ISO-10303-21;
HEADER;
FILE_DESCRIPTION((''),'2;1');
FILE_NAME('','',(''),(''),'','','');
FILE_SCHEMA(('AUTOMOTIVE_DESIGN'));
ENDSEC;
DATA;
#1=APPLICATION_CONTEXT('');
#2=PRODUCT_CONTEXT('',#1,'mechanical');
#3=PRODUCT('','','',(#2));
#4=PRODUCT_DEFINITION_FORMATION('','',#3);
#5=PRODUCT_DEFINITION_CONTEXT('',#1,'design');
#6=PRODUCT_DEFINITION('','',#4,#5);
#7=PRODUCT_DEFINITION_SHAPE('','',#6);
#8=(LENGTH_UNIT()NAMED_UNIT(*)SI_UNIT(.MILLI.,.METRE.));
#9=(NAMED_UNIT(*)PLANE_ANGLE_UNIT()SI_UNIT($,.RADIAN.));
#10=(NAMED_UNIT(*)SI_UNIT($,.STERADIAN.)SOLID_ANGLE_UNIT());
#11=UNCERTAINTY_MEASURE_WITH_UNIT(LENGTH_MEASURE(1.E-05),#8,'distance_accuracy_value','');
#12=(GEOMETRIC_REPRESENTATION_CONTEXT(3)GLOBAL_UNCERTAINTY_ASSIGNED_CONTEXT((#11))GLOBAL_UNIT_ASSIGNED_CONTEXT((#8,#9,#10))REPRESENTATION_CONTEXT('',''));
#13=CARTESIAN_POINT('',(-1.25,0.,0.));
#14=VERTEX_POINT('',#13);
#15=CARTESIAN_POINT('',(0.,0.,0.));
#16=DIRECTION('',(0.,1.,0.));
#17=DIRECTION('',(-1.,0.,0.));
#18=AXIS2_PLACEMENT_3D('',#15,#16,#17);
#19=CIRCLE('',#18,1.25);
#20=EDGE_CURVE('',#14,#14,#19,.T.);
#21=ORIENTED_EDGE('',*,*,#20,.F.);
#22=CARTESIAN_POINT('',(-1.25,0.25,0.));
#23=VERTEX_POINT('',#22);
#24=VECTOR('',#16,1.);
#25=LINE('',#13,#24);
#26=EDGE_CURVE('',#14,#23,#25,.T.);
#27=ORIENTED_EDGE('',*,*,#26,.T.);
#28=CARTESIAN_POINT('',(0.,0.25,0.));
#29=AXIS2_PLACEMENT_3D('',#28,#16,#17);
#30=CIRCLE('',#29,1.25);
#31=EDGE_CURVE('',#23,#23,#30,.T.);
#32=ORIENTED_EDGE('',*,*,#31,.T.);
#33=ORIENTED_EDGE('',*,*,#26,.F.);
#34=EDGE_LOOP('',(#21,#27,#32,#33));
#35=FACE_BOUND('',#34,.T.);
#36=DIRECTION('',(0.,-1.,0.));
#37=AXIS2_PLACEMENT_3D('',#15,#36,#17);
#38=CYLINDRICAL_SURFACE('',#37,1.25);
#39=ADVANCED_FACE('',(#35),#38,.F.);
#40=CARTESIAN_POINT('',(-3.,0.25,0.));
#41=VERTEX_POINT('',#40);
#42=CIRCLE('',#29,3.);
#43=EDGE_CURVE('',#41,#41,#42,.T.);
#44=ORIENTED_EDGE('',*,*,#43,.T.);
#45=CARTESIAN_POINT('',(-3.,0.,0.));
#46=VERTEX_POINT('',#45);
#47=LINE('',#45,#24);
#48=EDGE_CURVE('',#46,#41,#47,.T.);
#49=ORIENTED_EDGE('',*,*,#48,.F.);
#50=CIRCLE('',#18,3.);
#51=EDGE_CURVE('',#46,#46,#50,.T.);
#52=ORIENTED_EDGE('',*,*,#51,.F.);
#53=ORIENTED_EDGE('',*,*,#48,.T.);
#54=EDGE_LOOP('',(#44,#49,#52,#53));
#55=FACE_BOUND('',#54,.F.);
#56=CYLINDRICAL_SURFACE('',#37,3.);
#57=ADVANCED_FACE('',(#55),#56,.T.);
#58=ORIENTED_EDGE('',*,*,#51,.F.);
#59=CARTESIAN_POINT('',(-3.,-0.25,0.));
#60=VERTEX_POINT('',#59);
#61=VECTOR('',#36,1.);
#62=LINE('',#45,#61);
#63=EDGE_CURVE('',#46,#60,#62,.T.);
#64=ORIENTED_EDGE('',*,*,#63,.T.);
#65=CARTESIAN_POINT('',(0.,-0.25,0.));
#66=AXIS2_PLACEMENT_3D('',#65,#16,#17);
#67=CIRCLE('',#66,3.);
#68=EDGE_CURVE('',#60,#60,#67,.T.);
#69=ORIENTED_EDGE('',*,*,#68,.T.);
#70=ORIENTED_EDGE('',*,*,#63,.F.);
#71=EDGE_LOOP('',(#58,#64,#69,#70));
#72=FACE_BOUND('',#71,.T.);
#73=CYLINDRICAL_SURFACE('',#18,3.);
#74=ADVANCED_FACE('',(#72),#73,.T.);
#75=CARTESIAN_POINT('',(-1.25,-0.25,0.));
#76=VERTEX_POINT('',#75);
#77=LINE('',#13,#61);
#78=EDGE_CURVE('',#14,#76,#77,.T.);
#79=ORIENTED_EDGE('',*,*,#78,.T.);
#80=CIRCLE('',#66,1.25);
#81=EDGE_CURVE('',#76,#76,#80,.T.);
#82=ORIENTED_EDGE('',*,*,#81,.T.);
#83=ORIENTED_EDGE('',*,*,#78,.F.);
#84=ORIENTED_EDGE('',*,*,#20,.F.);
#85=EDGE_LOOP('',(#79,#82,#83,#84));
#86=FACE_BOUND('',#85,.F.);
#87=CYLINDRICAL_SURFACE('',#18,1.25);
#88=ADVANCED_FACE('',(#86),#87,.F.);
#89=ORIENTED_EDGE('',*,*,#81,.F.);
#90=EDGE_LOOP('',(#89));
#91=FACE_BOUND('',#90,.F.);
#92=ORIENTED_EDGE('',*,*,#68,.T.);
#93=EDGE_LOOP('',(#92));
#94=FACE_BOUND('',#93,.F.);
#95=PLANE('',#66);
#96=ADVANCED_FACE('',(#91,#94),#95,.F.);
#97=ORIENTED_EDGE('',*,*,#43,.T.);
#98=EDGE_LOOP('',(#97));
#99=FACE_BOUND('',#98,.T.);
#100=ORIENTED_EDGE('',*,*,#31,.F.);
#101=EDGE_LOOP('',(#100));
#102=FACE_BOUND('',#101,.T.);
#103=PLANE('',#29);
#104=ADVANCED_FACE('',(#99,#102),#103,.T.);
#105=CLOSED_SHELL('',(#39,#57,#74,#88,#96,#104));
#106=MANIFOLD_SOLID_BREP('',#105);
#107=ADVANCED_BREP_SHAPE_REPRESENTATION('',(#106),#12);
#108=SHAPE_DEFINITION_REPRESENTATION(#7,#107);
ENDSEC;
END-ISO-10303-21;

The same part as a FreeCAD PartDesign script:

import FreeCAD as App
import Part
import Sketcher
Q = App.Units.Quantity

doc = App.newDocument("Part")
body = doc.addObject("PartDesign::Body", "Body")

# Sketch on XZ plane
sketch1 = body.newObject("Sketcher::SketchObject", "Sketch")
sketch1.AttachmentSupport = (doc.getObject("XZ_Plane"), [""])
sketch1.MapMode = "FlatFace"
sketch1.addGeometry(Part.Circle(App.Vector(0, 0, 0), App.Vector(0, 0, 1), 3), False)
sketch1.addGeometry(Part.Circle(App.Vector(0, 0, 0), App.Vector(0, 0, 1), 1.25), False)
sketch1.addConstraint(Sketcher.Constraint("Coincident", 0, 3, -1, 1))
sketch1.addConstraint(Sketcher.Constraint("Coincident", 1, 3, -1, 1))
sketch1.addConstraint(Sketcher.Constraint("Diameter", 0, Q("6 mm")))
sketch1.addConstraint(Sketcher.Constraint("Diameter", 1, Q("2.5 mm")))
pad1 = body.newObject("PartDesign::Pad", "Pad")
pad1.Profile = sketch1
pad1.Length = 0.5
pad1.Midplane = True

doc.recompute()
